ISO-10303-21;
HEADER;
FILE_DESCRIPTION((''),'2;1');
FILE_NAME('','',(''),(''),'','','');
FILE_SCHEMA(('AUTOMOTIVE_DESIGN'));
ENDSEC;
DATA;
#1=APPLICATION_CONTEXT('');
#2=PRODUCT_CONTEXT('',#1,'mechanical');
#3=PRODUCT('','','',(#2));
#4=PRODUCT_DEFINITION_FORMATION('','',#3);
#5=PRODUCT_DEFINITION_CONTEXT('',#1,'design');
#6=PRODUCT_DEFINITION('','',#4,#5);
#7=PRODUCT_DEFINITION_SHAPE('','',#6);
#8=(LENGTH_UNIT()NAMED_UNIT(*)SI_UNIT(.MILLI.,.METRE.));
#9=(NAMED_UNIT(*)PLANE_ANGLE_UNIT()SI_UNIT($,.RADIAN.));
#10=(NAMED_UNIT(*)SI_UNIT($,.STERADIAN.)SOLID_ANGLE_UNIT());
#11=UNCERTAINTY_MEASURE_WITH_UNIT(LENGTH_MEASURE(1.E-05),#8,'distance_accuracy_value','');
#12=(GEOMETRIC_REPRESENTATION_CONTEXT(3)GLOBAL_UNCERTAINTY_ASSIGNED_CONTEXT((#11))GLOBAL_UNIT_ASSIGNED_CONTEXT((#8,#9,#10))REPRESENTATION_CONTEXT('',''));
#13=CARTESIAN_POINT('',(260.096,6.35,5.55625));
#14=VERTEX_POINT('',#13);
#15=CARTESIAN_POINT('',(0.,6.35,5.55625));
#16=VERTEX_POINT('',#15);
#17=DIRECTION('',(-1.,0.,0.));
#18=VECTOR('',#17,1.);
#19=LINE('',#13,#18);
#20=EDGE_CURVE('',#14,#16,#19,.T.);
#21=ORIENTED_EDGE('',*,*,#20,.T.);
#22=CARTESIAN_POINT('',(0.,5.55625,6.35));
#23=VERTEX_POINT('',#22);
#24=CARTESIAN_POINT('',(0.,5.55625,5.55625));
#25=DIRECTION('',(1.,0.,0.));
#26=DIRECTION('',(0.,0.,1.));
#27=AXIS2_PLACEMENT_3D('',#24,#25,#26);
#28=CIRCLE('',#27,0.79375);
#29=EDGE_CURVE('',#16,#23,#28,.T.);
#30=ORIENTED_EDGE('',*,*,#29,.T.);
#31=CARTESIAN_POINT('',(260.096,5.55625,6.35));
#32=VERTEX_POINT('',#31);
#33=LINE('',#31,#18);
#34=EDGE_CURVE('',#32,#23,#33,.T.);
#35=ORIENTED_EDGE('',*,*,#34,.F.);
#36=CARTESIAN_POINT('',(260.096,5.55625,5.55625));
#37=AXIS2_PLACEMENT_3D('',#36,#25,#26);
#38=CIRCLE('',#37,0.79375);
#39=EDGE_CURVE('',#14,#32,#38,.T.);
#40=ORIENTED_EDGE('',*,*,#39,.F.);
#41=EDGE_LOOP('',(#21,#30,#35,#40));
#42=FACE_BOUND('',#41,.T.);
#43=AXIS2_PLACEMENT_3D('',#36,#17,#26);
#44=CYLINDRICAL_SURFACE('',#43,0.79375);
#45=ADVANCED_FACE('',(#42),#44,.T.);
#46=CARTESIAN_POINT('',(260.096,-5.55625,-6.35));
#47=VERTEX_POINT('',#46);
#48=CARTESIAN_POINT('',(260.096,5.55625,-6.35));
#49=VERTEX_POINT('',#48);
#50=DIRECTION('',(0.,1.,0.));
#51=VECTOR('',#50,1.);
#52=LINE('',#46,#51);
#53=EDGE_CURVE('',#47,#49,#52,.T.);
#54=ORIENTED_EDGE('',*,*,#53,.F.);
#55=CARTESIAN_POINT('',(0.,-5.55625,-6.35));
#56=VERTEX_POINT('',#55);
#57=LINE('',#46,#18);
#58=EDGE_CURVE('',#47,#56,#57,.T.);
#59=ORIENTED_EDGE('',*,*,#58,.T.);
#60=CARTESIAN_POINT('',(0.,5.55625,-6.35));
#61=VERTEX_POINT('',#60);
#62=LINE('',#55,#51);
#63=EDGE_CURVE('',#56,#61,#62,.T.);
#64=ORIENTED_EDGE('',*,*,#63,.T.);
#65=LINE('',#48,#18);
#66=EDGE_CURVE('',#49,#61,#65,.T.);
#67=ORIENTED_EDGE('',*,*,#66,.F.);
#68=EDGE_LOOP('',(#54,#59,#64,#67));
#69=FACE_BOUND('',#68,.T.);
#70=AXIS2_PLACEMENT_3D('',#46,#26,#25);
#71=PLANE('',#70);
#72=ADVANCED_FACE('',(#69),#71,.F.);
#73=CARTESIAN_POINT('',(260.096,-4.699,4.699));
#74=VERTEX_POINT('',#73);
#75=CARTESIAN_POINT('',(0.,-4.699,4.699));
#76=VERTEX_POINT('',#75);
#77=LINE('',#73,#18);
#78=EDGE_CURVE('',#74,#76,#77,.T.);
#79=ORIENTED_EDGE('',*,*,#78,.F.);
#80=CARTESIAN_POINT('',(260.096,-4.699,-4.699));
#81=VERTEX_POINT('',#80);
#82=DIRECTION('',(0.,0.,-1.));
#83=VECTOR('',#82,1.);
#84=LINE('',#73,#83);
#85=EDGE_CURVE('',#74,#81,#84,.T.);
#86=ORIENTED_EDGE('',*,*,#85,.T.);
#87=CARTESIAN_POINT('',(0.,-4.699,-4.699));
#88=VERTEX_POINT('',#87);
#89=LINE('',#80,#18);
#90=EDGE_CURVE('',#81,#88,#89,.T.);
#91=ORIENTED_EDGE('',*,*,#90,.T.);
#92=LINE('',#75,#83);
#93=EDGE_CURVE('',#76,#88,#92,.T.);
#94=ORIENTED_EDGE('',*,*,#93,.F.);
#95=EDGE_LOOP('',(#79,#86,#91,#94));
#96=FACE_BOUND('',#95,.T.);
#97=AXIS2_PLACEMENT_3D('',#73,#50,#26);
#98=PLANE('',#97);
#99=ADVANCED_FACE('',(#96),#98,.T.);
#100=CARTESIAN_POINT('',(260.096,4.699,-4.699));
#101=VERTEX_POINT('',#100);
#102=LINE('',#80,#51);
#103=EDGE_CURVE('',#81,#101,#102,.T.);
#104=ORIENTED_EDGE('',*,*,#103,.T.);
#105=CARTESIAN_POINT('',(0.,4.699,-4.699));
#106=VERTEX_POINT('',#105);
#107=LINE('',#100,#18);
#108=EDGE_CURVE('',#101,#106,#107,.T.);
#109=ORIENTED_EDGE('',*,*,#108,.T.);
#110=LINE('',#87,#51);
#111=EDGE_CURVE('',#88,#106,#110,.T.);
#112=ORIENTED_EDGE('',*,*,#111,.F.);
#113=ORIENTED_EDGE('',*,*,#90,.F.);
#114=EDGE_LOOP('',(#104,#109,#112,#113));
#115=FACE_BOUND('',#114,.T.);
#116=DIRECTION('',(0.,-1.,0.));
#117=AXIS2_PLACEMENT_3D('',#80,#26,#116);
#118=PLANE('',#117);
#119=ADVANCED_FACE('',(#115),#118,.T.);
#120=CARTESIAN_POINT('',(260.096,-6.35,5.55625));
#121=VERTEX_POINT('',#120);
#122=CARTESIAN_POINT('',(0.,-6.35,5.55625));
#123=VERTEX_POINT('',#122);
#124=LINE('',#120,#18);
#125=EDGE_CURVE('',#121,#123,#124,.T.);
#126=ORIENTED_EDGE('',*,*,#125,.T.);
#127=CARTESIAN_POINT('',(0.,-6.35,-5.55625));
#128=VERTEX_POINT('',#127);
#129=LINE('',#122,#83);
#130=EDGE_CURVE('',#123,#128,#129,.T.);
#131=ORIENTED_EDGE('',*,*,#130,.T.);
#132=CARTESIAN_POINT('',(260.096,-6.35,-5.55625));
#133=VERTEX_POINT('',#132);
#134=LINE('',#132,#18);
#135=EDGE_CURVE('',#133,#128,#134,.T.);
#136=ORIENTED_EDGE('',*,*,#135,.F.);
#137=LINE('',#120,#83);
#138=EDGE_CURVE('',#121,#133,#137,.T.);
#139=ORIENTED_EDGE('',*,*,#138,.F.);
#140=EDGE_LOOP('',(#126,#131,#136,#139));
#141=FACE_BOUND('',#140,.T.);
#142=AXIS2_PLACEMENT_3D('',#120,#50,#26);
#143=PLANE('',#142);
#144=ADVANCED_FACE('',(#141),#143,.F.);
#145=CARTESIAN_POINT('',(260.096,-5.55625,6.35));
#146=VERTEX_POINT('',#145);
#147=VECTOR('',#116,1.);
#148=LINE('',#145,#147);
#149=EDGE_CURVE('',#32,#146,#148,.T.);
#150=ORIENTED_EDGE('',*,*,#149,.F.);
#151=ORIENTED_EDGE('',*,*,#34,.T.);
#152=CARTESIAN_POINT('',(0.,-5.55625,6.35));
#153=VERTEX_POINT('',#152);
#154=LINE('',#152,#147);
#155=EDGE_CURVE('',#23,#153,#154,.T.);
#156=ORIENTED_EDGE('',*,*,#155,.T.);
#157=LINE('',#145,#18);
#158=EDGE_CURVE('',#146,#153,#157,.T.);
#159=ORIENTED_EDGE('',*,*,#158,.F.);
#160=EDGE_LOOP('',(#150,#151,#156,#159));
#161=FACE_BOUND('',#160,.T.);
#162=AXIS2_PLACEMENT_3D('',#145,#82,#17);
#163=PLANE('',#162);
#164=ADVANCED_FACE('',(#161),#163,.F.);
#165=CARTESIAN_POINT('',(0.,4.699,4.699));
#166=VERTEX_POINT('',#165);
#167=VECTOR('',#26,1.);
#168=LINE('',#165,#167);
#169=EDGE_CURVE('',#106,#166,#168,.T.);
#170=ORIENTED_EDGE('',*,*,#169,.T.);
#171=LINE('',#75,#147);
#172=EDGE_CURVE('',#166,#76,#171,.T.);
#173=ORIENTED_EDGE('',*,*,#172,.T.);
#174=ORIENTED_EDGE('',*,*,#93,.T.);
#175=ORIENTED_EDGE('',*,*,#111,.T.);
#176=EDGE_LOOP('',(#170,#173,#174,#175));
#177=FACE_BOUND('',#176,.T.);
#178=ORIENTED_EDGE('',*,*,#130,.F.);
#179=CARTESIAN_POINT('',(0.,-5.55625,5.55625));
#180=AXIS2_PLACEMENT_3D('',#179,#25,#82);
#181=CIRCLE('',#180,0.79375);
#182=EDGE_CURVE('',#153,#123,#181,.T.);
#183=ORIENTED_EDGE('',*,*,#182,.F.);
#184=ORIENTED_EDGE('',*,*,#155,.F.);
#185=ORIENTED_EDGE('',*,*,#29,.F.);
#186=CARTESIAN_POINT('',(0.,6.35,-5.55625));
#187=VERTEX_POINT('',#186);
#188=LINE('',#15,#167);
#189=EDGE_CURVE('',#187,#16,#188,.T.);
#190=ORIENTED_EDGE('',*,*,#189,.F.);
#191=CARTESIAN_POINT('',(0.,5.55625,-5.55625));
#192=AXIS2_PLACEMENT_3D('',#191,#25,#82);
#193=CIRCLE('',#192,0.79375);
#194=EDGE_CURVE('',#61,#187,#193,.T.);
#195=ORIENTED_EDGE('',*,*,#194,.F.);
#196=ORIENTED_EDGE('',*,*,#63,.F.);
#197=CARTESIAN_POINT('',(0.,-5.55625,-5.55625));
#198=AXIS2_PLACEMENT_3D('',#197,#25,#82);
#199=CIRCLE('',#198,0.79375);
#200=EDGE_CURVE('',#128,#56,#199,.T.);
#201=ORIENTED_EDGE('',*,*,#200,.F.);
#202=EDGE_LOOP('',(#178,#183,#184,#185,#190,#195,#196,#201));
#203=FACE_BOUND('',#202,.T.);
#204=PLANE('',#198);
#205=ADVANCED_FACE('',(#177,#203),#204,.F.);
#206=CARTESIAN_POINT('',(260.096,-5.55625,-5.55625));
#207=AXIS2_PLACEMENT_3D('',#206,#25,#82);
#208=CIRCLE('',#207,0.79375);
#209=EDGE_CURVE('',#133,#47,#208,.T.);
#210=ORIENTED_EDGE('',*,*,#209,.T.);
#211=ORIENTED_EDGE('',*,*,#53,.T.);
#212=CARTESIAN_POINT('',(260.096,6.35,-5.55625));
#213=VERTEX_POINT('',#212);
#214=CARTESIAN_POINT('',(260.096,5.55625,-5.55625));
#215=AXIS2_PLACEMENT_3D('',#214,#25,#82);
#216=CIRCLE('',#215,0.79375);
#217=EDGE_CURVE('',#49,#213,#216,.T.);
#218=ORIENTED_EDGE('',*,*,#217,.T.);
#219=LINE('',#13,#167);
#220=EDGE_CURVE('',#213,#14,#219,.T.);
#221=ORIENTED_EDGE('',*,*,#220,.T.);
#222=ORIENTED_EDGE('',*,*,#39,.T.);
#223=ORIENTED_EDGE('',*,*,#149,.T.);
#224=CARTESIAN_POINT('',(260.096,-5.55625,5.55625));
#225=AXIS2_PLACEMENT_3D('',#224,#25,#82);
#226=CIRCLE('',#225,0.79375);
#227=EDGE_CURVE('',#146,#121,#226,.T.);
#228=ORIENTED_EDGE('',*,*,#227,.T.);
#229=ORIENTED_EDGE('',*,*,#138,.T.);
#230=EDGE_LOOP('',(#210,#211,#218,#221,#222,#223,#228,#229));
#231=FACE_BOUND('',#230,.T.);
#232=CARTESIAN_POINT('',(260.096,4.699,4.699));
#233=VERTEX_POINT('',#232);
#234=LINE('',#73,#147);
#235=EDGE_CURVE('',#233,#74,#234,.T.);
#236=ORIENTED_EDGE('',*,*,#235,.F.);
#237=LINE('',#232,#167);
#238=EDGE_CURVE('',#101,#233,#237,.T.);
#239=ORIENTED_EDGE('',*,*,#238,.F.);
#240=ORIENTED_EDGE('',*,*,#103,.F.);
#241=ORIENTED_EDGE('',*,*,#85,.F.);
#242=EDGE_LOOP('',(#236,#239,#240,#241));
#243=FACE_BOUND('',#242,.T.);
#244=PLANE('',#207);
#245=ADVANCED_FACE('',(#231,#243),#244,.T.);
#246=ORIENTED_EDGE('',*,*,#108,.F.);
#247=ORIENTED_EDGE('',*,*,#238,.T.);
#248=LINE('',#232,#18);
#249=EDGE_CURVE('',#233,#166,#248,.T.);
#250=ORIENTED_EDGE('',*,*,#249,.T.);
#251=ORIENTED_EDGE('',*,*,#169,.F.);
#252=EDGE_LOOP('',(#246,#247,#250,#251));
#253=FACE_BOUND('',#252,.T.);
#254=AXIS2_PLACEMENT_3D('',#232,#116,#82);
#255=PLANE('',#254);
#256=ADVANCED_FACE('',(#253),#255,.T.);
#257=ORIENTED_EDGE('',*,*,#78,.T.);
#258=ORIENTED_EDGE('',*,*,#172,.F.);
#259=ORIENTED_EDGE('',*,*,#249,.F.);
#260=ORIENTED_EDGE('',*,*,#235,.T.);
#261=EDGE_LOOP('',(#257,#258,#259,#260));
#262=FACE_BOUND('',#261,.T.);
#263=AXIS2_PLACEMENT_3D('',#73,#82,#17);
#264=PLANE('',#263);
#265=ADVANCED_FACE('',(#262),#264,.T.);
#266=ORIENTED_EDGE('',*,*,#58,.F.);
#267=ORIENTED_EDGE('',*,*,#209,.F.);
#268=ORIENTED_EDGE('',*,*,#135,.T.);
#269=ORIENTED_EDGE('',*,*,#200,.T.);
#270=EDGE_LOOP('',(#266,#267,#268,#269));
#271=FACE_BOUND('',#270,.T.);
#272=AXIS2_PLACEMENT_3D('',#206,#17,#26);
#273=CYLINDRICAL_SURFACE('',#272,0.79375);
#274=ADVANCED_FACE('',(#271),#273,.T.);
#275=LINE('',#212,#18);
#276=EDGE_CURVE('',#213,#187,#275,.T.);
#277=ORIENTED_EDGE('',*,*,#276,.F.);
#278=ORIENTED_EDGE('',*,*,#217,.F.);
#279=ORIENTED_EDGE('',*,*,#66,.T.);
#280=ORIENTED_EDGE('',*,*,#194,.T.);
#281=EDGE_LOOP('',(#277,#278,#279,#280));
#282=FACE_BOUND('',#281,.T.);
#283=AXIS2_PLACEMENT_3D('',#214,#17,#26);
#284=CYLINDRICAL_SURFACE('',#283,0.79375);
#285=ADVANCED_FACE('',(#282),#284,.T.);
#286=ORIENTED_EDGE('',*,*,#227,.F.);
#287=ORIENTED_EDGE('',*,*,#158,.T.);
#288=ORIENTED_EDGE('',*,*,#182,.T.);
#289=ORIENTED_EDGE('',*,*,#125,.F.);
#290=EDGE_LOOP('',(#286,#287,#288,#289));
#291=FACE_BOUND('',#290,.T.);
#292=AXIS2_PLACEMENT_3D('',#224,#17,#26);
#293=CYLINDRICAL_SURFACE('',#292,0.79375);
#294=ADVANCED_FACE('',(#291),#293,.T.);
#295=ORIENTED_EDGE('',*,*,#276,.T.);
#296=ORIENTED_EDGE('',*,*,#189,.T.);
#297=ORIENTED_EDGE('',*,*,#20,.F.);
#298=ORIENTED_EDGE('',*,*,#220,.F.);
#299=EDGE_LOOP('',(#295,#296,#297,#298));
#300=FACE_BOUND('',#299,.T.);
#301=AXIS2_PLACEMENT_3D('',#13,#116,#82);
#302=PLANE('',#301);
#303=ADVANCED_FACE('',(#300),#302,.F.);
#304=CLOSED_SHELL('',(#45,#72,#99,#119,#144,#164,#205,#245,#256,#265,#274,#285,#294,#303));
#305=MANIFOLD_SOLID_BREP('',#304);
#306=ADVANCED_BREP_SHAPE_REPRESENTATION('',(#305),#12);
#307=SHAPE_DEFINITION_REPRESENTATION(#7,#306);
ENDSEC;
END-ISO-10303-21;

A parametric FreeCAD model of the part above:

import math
import FreeCAD as App
import Part
import Sketcher

V = App.Vector
Q = App.Units.Quantity

doc = App.newDocument("Part")
body = doc.addObject("PartDesign::Body", "Body")

sketch1 = doc.addObject("Sketcher::SketchObject", "Sketch")
body.addObject(sketch1)
sketch1.AttachmentSupport = (doc.YZ_Plane, [""])
sketch1.MapMode = "FlatFace"
sketch1.addGeometry([
    Part.LineSegment(V(5.6, 6.3, 0), V(-5.6, 6.3, 0)),
    Part.ArcOfCircle(Part.Circle(V(-5.6, 5.6, 0), V(0, 0, 1), 0.8), math.radians(90), math.radians(180)),
    Part.LineSegment(V(-6.3, 5.6, 0), V(-6.3, -5.6, 0)),
    Part.ArcOfCircle(Part.Circle(V(-5.6, -5.6, 0), V(0, 0, 1), 0.8), math.radians(180), math.radians(270)),
    Part.LineSegment(V(-5.6, -6.3, 0), V(5.6, -6.3, 0)),
    Part.ArcOfCircle(Part.Circle(V(5.6, -5.6, 0), V(0, 0, 1), 0.8), math.radians(-90), math.radians(0)),
    Part.LineSegment(V(6.3, -5.6, 0), V(6.3, 5.6, 0)),
    Part.ArcOfCircle(Part.Circle(V(5.6, 5.6, 0), V(0, 0, 1), 0.8), math.radians(0), math.radians(90)),
    Part.LineSegment(V(-4.7, -4.7, 0), V(-4.7, 4.7, 0)),
    Part.LineSegment(V(-4.7, 4.7, 0), V(4.7, 4.7, 0)),
    Part.LineSegment(V(4.7, 4.7, 0), V(4.7, -4.7, 0)),
    Part.LineSegment(V(4.7, -4.7, 0), V(-4.7, -4.7, 0)),
], False)
sketch1.addConstraint([
    Sketcher.Constraint("Tangent", 0, 2, 1, 1),
    Sketcher.Constraint("Tangent", 1, 2, 2, 1),
    Sketcher.Constraint("Tangent", 2, 2, 3, 1),
    Sketcher.Constraint("Tangent", 3, 2, 4, 1),
    Sketcher.Constraint("Tangent", 4, 2, 5, 1),
    Sketcher.Constraint("Tangent", 5, 2, 6, 1),
    Sketcher.Constraint("Tangent", 6, 2, 7, 1),
    Sketcher.Constraint("Tangent", 7, 2, 0, 1),
    Sketcher.Constraint("Coincident", 8, 2, 9, 1),
    Sketcher.Constraint("Coincident", 9, 2, 10, 1),
    Sketcher.Constraint("Coincident", 10, 2, 11, 1),
    Sketcher.Constraint("Coincident", 11, 2, 8, 1),
    Sketcher.Constraint("Horizontal", 0),
    Sketcher.Constraint("Vertical", 2),
    Sketcher.Constraint("Horizontal", 4),
    Sketcher.Constraint("Vertical", 6),
    Sketcher.Constraint("Vertical", 8),
    Sketcher.Constraint("Horizontal", 9),
    Sketcher.Constraint("Vertical", 10),
    Sketcher.Constraint("Horizontal", 11),
    Sketcher.Constraint("Equal", 1, 3),
    Sketcher.Constraint("Equal", 3, 5),
    Sketcher.Constraint("Equal", 5, 7),
    Sketcher.Constraint("Symmetric", 1, 3, 5, 3, -1, 1),
    Sketcher.Constraint("Symmetric", 8, 2, 10, 2, -1, 1),
    Sketcher.Constraint("Equal", 4, 2),
    Sketcher.Constraint("Equal", 11, 8),
    Sketcher.Constraint("Radius", 1, Q("0.03125 in")),
    Sketcher.Constraint("DistanceX", 9, 1, 9, 2, Q("0.37 in")),
    Sketcher.Constraint("DistanceX", 0, 2, 0, 1, Q("0.4375 in")),
])
pad1 = doc.addObject("PartDesign::Pad", "Pad")
body.addObject(pad1)
pad1.Profile = sketch1
pad1.Length = Q("10.24 in")

doc.recompute()
